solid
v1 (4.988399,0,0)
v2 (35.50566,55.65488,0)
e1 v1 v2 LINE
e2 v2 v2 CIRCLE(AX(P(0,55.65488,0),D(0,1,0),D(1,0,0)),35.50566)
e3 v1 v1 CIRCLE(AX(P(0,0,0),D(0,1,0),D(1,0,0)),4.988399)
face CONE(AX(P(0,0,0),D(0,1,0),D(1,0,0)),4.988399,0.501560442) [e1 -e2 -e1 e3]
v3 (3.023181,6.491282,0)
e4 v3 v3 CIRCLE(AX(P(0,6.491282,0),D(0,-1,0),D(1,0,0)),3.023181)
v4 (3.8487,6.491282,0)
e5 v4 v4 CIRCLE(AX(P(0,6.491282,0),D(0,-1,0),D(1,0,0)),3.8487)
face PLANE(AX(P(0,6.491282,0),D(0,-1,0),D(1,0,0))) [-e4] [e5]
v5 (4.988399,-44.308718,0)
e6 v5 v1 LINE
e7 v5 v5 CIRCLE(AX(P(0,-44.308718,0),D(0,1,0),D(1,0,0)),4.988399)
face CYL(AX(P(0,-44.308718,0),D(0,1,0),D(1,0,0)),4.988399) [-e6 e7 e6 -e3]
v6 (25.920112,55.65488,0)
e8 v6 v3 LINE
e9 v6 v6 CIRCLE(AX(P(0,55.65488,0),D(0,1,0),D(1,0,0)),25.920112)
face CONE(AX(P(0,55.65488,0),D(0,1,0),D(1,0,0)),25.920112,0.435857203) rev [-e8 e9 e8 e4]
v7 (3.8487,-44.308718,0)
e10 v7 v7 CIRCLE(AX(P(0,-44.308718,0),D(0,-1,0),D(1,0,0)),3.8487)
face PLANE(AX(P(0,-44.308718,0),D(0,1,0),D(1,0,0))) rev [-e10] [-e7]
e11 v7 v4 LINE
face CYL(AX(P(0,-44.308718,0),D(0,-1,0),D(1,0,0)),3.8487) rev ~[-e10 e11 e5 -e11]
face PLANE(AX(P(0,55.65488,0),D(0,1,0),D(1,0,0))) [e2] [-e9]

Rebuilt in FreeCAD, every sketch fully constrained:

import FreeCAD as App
import Part
import Sketcher
from FreeCAD import Vector
Q = App.Units.Quantity


def add_polygon(sketch, points):
    """Adds a closed chain of lines whose ends are joined by coincident constraints."""
    first, n = sketch.GeometryCount, len(points)
    for a, b in zip(points, points[1:] + points[:1]):
        sketch.addGeometry(Part.LineSegment(App.Vector(*a, 0), App.Vector(*b, 0)), False)
    for i in range(n):
        sketch.addConstraint(Sketcher.Constraint("Coincident", first + i, 2, first + (i + 1) % n, 1))

doc = App.newDocument("Part")
body = doc.addObject("PartDesign::Body", "Body")

sketch1 = body.newObject("Sketcher::SketchObject", "Sketch")
sketch1.AttachmentSupport = (doc.getObject("XY_Plane"), [""])
sketch1.MapMode = "FlatFace"
add_polygon(sketch1, [(35.5, 55.7), (25.9, 55.7), (0, 0), (0, -44.3), (5, -44.3), (5, 0)])
sketch1.addConstraint(Sketcher.Constraint("Horizontal", 0))
sketch1.addConstraint(Sketcher.Constraint("Vertical", 2))
sketch1.addConstraint(Sketcher.Constraint("Horizontal", 3))
sketch1.addConstraint(Sketcher.Constraint("Vertical", 4))
sketch1.addConstraint(Sketcher.Constraint("Coincident", 1, 2, -1, 1))
sketch1.addConstraint(Sketcher.Constraint("PointOnObject", 4, 2, -1))
sketch1.addConstraint(Sketcher.Constraint("DistanceX", 3, 1, 3, 2, Q("4.988399 mm")))
sketch1.addConstraint(Sketcher.Constraint("Distance", 1, Q("61.394771 mm")))
sketch1.addConstraint(Sketcher.Constraint("DistanceX", 0, 2, 0, 1, Q("9.585548 mm")))
sketch1.addConstraint(Sketcher.Constraint("DistanceY", 2, 2, 2, 1, Q("44.308718 mm")))
sketch1.addConstraint(Sketcher.Constraint("DistanceX", -1, 1, 0, 2, Q("25.920112 mm")))
revolution = body.newObject("PartDesign::Revolution", "Revolution")
revolution.Profile = sketch1
revolution.ReferenceAxis = (sketch1, ["V_Axis"])
revolution.Angle = 360

sketch2 = body.newObject("Sketcher::SketchObject", "Sketch001")
sketch2.AttachmentSupport = (doc.getObject("XZ_Plane"), [""])
sketch2.MapMode = "FlatFace"
sketch2.AttachmentOffset = App.Placement(Vector(0, 0, 44.308718), App.Rotation())
sketch2.addGeometry(Part.Circle(Vector(0, 0, 0), Vector(0, 0, 1), 3.8), False)
sketch2.addConstraint(Sketcher.Constraint("Coincident", 0, 3, -1, 1))
sketch2.addConstraint(Sketcher.Constraint("Diameter", 0, Q("7.6974 mm")))
pocket1 = body.newObject("PartDesign::Pocket", "Pocket")
pocket1.Profile = sketch2
pocket1.Length = Q("2 in")

doc.recompute()
